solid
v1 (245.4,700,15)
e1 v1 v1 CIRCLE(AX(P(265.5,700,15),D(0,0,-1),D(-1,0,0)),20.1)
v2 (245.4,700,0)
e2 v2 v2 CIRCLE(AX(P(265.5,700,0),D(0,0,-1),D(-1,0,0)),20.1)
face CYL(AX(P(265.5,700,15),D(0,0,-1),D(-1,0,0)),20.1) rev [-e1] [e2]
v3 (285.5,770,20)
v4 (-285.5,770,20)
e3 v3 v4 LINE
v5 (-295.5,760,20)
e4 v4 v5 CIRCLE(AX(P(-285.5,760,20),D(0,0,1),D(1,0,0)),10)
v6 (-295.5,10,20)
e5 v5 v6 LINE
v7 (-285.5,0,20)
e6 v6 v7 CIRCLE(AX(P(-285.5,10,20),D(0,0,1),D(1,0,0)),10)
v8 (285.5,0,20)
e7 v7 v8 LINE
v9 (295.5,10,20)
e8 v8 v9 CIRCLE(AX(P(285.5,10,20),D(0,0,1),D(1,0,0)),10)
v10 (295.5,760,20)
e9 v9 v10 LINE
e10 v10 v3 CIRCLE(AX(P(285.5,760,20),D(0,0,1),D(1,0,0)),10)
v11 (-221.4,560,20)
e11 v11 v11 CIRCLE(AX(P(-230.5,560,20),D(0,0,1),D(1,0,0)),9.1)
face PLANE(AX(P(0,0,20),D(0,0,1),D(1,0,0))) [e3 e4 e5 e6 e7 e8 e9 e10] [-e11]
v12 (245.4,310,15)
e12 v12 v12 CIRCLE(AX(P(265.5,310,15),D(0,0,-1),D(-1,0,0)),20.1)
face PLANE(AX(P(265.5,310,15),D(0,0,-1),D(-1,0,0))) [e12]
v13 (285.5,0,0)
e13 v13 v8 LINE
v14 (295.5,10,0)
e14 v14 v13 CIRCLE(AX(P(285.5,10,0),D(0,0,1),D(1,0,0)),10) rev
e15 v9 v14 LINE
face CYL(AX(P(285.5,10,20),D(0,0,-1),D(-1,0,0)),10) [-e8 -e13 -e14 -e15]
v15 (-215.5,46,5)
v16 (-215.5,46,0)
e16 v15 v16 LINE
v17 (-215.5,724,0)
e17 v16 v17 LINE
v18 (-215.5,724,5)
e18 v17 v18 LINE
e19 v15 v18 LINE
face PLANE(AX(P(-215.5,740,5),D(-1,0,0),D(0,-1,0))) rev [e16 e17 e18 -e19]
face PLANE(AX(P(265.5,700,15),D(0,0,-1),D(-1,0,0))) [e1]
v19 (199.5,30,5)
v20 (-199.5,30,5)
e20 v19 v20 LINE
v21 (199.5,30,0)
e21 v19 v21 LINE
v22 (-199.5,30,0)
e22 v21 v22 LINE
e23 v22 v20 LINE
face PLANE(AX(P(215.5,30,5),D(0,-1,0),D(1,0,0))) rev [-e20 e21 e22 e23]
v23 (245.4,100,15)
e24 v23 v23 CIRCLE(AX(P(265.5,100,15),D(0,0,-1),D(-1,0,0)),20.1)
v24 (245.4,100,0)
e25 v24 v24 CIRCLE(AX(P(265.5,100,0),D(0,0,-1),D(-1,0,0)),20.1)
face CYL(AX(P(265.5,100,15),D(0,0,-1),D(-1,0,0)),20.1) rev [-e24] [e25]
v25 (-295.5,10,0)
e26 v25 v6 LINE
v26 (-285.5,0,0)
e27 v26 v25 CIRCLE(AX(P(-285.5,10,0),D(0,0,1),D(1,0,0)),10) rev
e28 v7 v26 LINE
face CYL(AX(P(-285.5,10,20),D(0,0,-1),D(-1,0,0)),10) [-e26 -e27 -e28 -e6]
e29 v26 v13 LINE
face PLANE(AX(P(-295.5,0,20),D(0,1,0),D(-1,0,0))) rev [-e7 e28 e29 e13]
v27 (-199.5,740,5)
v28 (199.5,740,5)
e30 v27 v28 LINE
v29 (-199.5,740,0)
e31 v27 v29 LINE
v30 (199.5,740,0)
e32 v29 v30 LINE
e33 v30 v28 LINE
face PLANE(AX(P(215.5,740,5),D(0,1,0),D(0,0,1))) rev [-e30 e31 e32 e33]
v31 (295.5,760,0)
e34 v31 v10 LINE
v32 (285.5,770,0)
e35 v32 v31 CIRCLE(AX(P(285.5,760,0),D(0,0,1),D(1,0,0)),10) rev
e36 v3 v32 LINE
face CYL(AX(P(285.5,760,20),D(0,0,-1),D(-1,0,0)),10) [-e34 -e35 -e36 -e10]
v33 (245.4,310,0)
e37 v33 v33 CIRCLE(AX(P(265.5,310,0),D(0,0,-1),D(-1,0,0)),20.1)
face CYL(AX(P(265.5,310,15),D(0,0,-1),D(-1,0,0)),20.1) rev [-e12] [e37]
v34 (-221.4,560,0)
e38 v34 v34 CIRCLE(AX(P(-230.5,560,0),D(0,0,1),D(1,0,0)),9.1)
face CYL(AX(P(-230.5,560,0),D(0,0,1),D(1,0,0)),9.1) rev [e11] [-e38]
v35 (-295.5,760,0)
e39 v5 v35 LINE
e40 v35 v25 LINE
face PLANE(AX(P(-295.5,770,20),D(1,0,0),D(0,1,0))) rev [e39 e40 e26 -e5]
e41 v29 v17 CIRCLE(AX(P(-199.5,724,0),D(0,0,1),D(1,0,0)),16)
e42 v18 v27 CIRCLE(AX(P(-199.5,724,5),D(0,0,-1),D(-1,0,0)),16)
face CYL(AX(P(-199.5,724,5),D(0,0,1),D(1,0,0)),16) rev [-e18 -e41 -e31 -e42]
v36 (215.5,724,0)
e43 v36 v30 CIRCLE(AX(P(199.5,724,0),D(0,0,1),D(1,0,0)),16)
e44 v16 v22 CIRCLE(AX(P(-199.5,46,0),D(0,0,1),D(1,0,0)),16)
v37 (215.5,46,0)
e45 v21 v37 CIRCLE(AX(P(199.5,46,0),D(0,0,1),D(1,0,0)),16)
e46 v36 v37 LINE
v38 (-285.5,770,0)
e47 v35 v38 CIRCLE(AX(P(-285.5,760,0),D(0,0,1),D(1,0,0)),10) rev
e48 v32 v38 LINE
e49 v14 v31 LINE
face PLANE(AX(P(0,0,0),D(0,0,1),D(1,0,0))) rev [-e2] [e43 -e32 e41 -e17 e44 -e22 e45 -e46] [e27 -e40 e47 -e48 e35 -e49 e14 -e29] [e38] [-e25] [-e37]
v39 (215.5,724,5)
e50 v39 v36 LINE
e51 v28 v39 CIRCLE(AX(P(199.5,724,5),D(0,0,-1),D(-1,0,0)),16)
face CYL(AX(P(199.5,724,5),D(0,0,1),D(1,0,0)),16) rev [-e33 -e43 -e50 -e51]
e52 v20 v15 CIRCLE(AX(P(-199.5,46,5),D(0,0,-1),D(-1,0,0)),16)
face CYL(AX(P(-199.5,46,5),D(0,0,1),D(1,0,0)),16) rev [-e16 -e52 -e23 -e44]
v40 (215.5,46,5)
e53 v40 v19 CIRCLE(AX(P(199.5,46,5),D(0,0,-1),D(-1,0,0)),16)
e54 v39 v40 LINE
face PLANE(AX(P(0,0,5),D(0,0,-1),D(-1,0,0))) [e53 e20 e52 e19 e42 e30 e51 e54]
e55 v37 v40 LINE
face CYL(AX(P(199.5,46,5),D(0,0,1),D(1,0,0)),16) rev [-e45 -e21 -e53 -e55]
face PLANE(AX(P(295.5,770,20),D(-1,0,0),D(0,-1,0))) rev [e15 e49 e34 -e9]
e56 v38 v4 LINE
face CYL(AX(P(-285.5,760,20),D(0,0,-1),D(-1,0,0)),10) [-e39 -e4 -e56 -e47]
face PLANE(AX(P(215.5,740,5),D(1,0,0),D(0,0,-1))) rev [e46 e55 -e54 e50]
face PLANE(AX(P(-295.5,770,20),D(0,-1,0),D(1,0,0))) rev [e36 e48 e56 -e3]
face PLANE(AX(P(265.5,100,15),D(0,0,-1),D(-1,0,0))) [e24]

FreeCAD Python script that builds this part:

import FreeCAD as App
import Part
import Sketcher
from FreeCAD import Vector
Q = App.Units.Quantity


def edges_at(feature, points):
    """Names of the edges that pass closest to the given points."""
    edges = feature.Shape.Edges
    near = lambda p: min(range(len(edges)), key=lambda i: edges[i].distToShape(Part.Vertex(*p))[0])
    return sorted({f"Edge{near(p) + 1}" for p in points})

doc = App.newDocument("Part")
body = doc.addObject("PartDesign::Body", "Body")

sketch1 = body.newObject("Sketcher::SketchObject", "Sketch")
sketch1.AttachmentSupport = (doc.getObject("XY_Plane"), [""])
sketch1.MapMode = "FlatFace"
sketch1.addGeometry(Part.LineSegment(Vector(-295.5, 770, 0), Vector(-295.5, 0, 0)), False)
sketch1.addGeometry(Part.LineSegment(Vector(-295.5, 0, 0), Vector(295.5, 0, 0)), False)
sketch1.addGeometry(Part.LineSegment(Vector(295.5, 0, 0), Vector(295.5, 770, 0)), False)
sketch1.addGeometry(Part.LineSegment(Vector(295.5, 770, 0), Vector(-295.5, 770, 0)), False)
sketch1.addConstraint(Sketcher.Constraint("Coincident", 0, 2, 1, 1))
sketch1.addConstraint(Sketcher.Constraint("Coincident", 1, 2, 2, 1))
sketch1.addConstraint(Sketcher.Constraint("Coincident", 2, 2, 3, 1))
sketch1.addConstraint(Sketcher.Constraint("Coincident", 3, 2, 0, 1))
sketch1.addConstraint(Sketcher.Constraint("Vertical", 0))
sketch1.addConstraint(Sketcher.Constraint("Horizontal", 1))
sketch1.addConstraint(Sketcher.Constraint("Vertical", 2))
sketch1.addConstraint(Sketcher.Constraint("Horizontal", 3))
sketch1.addConstraint(Sketcher.Constraint("Symmetric", 0, 2, 1, 2, -1, 1))
sketch1.addConstraint(Sketcher.Constraint("DistanceX", 1, 1, 1, 2, Q("591 mm")))
sketch1.addConstraint(Sketcher.Constraint("DistanceY", 0, 2, 0, 1, Q("770 mm")))
pad1 = body.newObject("PartDesign::Pad", "Pad")
pad1.Profile = sketch1
pad1.Length = 20

sketch2 = body.newObject("Sketcher::SketchObject", "Sketch001")
sketch2.AttachmentSupport = (doc.getObject("XY_Plane"), [""])
sketch2.MapMode = "FlatFace"
sketch2.AttachmentOffset = App.Placement(Vector(0, 0, 20), App.Rotation())
sketch2.addGeometry(Part.Circle(Vector(-230.5, 560, 0), Vector(0, 0, 1), 9.1), False)
sketch2.addConstraint(Sketcher.Constraint("Diameter", 0, Q("18.2 mm")))
sketch2.addConstraint(Sketcher.Constraint("DistanceY", -1, 1, 0, 3, Q("560 mm")))
sketch2.addConstraint(Sketcher.Constraint("DistanceX", 0, 3, -1, 1, Q("230.5 mm")))
pocket1 = body.newObject("PartDesign::Pocket", "Pocket")
pocket1.Profile = sketch2
pocket1.Type = "ThroughAll"
pocket1.Midplane = True
doc.recompute()

fillet = body.newObject("PartDesign::Fillet", "Fillet")
fillet.Base = (pocket1, edges_at(pocket1, [
    (-295.5, 770, 10),
    (295.5, 770, 10),
    (295.5, 0, 10),
    (-295.5, 0, 10),
]))
fillet.Radius = 10

sketch3 = body.newObject("Sketcher::SketchObject", "Sketch002")
sketch3.AttachmentSupport = (doc.getObject("XY_Plane"), [""])
sketch3.MapMode = "FlatFace"
sketch3.addGeometry(Part.Circle(Vector(265.5, 700, 0), Vector(0, 0, 1), 20.1), False)
sketch3.addGeometry(Part.Circle(Vector(265.5, 310, 0), Vector(0, 0, 1), 20.1), False)
sketch3.addGeometry(Part.Circle(Vector(265.5, 100, 0), Vector(0, 0, 1), 20.1), False)
sketch3.addConstraint(Sketcher.Constraint("Equal", 0, 1))
sketch3.addConstraint(Sketcher.Constraint("Equal", 1, 2))
sketch3.addConstraint(Sketcher.Constraint("Vertical", 0, 3, 1, 3))
sketch3.addConstraint(Sketcher.Constraint("Vertical", 1, 3, 2, 3))
sketch3.addConstraint(Sketcher.Constraint("Diameter", 0, Q("40.2 mm")))
sketch3.addConstraint(Sketcher.Constraint("DistanceY", -1, 1, 0, 3, Q("700 mm")))
sketch3.addConstraint(Sketcher.Constraint("DistanceY", -1, 1, 1, 3, Q("310 mm")))
sketch3.addConstraint(Sketcher.Constraint("DistanceY", -1, 1, 2, 3, Q("100 mm")))
sketch3.addConstraint(Sketcher.Constraint("DistanceX", -1, 1, 0, 3, Q("265.5 mm")))
pocket2 = body.newObject("PartDesign::Pocket", "Pocket001")
pocket2.Profile = sketch3
pocket2.Length = 15
pocket2.Reversed = True

sketch4 = body.newObject("Sketcher::SketchObject", "Sketch003")
sketch4.AttachmentSupport = (doc.getObject("XY_Plane"), [""])
sketch4.MapMode = "FlatFace"
sketch4.addGeometry(Part.LineSegment(Vector(215.5, 740, 0), Vector(215.5, 30, 0)), False)
sketch4.addGeometry(Part.LineSegment(Vector(215.5, 30, 0), Vector(-215.5, 30, 0)), False)
sketch4.addGeometry(Part.LineSegment(Vector(-215.5, 30, 0), Vector(-215.5, 740, 0)), False)
sketch4.addGeometry(Part.LineSegment(Vector(-215.5, 740, 0), Vector(215.5, 740, 0)), False)
sketch4.addConstraint(Sketcher.Constraint("Coincident", 0, 2, 1, 1))
sketch4.addConstraint(Sketcher.Constraint("Coincident", 1, 2, 2, 1))
sketch4.addConstraint(Sketcher.Constraint("Coincident", 2, 2, 3, 1))
sketch4.addConstraint(Sketcher.Constraint("Coincident", 3, 2, 0, 1))
sketch4.addConstraint(Sketcher.Constraint("Vertical", 0))
sketch4.addConstraint(Sketcher.Constraint("Horizontal", 1))
sketch4.addConstraint(Sketcher.Constraint("Vertical", 2))
sketch4.addConstraint(Sketcher.Constraint("Horizontal", 3))
sketch4.addConstraint(Sketcher.Constraint("DistanceX", 1, 2, 1, 1, Q("431 mm")))
sketch4.addConstraint(Sketcher.Constraint("DistanceY", 0, 2, 0, 1, Q("710 mm")))
sketch4.addConstraint(Sketcher.Constraint("DistanceY", -1, 1, 0, 2, Q("30 mm")))
sketch4.addConstraint(Sketcher.Constraint("DistanceX", -1, 1, 0, 2, Q("215.5 mm")))
pocket3 = body.newObject("PartDesign::Pocket", "Pocket002")
pocket3.Profile = sketch4
pocket3.Length = 5
pocket3.Reversed = True
doc.recompute()

fillet2 = body.newObject("PartDesign::Fillet", "Fillet001")
fillet2.Base = (pocket3, edges_at(pocket3, [
    (215.5, 30, 2.5),
    (215.5, 740, 2.5),
    (-215.5, 740, 2.5),
    (-215.5, 30, 2.5),
]))
fillet2.Radius = 16

doc.recompute()
